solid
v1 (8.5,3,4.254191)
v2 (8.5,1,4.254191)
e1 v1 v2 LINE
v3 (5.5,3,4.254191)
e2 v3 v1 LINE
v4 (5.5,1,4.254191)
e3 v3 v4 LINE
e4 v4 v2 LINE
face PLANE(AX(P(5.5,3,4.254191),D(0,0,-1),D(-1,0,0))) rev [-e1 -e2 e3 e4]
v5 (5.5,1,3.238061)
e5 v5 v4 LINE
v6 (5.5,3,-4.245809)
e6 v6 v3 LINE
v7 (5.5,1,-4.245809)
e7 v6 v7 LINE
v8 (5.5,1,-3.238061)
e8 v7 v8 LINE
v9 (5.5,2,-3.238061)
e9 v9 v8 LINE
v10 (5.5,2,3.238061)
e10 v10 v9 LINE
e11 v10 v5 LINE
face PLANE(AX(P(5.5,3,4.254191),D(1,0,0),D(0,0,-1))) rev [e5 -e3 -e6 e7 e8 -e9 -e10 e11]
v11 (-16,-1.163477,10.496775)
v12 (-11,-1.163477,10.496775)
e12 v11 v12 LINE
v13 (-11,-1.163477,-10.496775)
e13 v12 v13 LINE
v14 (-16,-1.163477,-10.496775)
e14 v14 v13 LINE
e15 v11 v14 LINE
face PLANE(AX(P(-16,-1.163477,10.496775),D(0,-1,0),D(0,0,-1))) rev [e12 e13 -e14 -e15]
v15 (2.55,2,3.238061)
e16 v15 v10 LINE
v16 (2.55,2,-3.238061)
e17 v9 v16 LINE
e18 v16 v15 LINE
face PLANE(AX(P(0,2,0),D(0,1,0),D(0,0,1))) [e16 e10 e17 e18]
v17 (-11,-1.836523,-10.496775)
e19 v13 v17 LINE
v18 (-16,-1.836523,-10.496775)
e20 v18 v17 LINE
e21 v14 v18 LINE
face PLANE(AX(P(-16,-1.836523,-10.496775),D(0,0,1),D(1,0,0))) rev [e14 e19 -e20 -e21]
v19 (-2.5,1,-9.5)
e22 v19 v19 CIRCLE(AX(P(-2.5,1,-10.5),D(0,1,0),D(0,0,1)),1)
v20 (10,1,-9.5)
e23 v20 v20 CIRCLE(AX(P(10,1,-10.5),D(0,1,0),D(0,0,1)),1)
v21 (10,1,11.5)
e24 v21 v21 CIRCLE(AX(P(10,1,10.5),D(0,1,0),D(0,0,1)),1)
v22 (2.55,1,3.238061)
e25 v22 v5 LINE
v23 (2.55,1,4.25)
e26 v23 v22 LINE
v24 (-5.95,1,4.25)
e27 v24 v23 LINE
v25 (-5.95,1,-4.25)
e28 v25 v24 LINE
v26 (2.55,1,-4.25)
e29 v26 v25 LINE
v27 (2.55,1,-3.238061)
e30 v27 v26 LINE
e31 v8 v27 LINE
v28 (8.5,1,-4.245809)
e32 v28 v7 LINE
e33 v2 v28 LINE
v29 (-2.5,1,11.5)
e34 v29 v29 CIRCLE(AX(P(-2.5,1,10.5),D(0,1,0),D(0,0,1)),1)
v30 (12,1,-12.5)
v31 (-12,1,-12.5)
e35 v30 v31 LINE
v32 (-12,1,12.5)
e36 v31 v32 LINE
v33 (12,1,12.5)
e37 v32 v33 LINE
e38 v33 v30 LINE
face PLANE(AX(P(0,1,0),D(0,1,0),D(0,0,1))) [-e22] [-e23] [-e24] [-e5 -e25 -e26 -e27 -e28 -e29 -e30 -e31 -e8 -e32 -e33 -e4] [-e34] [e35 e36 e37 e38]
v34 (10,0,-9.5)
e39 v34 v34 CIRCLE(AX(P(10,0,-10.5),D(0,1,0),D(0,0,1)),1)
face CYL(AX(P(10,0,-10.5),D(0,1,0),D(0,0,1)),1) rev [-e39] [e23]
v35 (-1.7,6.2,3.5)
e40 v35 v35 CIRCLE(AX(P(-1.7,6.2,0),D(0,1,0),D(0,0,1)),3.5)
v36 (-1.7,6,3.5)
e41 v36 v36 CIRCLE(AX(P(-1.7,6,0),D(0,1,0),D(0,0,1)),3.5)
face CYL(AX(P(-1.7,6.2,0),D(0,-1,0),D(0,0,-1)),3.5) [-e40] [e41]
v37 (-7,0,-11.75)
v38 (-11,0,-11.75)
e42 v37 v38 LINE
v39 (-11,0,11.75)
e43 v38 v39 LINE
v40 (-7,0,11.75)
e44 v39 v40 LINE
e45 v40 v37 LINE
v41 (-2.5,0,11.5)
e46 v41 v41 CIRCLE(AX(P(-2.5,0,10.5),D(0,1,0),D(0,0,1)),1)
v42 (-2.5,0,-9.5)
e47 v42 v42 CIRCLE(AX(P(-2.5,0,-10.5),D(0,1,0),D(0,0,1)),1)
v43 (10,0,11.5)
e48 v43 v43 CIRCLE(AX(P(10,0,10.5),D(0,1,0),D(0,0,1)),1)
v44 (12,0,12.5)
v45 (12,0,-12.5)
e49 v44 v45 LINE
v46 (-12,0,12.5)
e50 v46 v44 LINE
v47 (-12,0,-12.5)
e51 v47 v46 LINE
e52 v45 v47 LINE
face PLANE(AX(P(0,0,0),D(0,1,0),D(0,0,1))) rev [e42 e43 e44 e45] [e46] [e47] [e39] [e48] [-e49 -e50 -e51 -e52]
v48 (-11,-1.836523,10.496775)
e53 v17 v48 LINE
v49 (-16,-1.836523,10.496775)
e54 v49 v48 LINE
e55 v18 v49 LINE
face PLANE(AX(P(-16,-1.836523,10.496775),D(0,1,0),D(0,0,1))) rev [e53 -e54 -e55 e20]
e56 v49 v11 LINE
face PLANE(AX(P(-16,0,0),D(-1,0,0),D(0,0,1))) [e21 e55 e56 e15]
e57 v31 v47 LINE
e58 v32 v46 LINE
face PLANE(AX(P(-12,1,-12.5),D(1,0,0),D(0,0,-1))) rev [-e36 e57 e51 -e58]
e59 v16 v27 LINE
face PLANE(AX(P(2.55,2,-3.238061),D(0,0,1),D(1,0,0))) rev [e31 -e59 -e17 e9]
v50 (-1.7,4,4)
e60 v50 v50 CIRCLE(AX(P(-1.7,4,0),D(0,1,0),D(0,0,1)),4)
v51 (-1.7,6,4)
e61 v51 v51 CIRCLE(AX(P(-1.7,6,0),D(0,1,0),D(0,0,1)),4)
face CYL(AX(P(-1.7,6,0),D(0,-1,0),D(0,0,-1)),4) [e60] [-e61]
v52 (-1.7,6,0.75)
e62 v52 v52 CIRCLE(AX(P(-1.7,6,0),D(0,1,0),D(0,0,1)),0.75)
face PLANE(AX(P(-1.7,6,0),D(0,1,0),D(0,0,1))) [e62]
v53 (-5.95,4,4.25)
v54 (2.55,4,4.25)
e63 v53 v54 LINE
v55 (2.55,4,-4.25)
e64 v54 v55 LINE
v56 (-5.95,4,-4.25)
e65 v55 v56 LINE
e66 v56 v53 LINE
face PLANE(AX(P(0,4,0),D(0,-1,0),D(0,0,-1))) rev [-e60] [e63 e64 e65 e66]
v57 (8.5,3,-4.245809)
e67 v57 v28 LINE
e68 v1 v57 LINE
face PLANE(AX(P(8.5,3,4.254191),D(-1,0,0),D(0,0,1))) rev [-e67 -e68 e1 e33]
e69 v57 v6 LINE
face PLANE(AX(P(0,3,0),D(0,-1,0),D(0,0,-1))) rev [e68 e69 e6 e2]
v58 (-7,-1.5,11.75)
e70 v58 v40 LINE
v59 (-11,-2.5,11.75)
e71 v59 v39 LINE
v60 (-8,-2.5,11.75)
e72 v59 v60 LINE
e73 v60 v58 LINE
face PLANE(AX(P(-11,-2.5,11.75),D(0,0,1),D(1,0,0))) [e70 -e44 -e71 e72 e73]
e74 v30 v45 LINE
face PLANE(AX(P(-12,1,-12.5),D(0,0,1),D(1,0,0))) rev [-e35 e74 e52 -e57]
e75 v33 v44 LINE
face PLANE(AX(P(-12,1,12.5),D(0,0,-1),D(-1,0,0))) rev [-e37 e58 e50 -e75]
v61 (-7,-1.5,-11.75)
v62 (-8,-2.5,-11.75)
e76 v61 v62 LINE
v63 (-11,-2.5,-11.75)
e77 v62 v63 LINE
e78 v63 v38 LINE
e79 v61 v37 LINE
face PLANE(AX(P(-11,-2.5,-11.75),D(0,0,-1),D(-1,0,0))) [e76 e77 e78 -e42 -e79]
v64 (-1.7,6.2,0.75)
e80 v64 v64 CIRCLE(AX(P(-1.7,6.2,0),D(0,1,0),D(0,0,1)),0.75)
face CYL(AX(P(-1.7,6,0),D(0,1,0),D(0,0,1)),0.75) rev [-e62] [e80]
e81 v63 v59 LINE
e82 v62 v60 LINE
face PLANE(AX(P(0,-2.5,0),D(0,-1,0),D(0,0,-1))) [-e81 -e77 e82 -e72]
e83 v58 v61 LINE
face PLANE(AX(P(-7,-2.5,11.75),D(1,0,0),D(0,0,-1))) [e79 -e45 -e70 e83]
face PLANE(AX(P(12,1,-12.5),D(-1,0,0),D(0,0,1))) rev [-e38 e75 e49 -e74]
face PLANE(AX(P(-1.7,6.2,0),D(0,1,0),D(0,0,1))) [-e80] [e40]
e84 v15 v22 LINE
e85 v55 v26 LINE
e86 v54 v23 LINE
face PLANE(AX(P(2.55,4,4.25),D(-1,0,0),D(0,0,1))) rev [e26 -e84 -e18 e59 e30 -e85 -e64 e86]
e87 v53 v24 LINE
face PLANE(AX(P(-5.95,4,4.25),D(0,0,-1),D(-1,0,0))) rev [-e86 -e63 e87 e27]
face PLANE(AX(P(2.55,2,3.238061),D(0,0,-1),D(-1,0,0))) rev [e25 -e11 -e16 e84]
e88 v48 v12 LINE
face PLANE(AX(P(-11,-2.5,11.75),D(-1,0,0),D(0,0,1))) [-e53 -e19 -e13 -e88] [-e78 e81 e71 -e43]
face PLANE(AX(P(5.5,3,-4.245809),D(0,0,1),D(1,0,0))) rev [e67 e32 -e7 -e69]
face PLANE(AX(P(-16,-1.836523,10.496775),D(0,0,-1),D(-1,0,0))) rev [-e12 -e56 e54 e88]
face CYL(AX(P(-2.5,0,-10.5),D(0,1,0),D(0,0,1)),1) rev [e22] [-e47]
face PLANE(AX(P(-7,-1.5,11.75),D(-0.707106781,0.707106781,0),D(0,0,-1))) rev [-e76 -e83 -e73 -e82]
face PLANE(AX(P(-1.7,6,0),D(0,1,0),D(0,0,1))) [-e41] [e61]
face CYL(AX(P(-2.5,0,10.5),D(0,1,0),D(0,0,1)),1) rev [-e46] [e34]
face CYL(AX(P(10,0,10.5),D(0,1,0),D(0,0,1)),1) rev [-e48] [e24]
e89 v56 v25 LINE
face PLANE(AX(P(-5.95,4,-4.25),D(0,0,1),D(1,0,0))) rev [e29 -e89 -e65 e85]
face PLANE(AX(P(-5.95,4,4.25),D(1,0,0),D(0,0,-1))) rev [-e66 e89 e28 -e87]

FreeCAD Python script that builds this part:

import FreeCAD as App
import Part
import Sketcher

V = App.Vector


def edges_at(feature, points):
    """Names of the edges that pass closest to the given points."""
    edges = feature.Shape.Edges
    near = lambda p: min(range(len(edges)), key=lambda i: edges[i].distToShape(Part.Vertex(*p))[0])
    return sorted({f"Edge{near(p) + 1}" for p in points})

doc = App.newDocument("Part")
params = doc.addObject("Spreadsheet::Sheet", "Params")
for row, (alias, value) in enumerate([
    ("sketch1_width", "24 mm"),
    ("sketch1_height", "25 mm"),
    ("pad1_length", "1 mm"),
    ("sketch2_width", "8.5 mm"),
    ("pad2_length", "3 mm"),
    ("sketch3_diameter", "8 mm"),
    ("pad3_length", "2 mm"),
    ("sketch4_width", "3 mm"),
    ("sketch4_height", "8.5 mm"),
    ("pad4_length", "2 mm"),
    ("sketch5_width", "2.95 mm"),
    ("pad5_length", "1 mm"),
    ("sketch6_width", "4 mm"),
    ("sketch6_height", "23.5 mm"),
    ("pad6_length", "2.5 mm"),
    ("chamfer_size", "1 mm"),
    ("pad7_length", "5 mm"),
    ("sketch8_diameter", "2 mm"),
    ("pocket1_length", "1 mm"),
    ("sketch9_diameter", "7 mm"),
    ("pad8_length", "0.2 mm"),
    ("sketch10_diameter", "1.5 mm"),
    ("pocket2_length", "0.2 mm"),
], start=1):
    params.set(f"A{row}", alias)
    params.set(f"B{row}", "=" + value)
    params.setAlias(f"B{row}", alias)

body = doc.addObject("PartDesign::Body", "Body")

# Sketch on XZ plane
sketch1 = body.newObject("Sketcher::SketchObject", "Sketch")
sketch1.AttachmentSupport = (doc.getObject("XZ_Plane"), [""])
sketch1.MapMode = "FlatFace"
sketch1.addGeometry(Part.LineSegment(V(-12, -12.5, 0), V(-12, 12.5, 0)), False)
sketch1.addGeometry(Part.LineSegment(V(-12, 12.5, 0), V(12, 12.5, 0)), False)
sketch1.addGeometry(Part.LineSegment(V(12, 12.5, 0), V(12, -12.5, 0)), False)
sketch1.addGeometry(Part.LineSegment(V(12, -12.5, 0), V(-12, -12.5, 0)), False)
sketch1.addConstraint(Sketcher.Constraint("Coincident", 0, 2, 1, 1))
sketch1.addConstraint(Sketcher.Constraint("Coincident", 1, 2, 2, 1))
sketch1.addConstraint(Sketcher.Constraint("Coincident", 2, 2, 3, 1))
sketch1.addConstraint(Sketcher.Constraint("Coincident", 3, 2, 0, 1))
sketch1.addConstraint(Sketcher.Constraint("Vertical", 0))
sketch1.addConstraint(Sketcher.Constraint("Horizontal", 1))
sketch1.addConstraint(Sketcher.Constraint("Vertical", 2))
sketch1.addConstraint(Sketcher.Constraint("Horizontal", 3))
sketch1.addConstraint(Sketcher.Constraint("Symmetric", 0, 2, 2, 2, -1, 1))
sketch1.addConstraint(Sketcher.Constraint("DistanceX", 1, 1, 1, 2, 24.0))
sketch1.addConstraint(Sketcher.Constraint("DistanceY", 0, 1, 0, 2, 25.0))
sketch1.setExpression("Constraints[9]", "Params.sketch1_width")
sketch1.setExpression("Constraints[10]", "Params.sketch1_height")
pad1 = body.newObject("PartDesign::Pad", "Pad")
pad1.Profile = sketch1
pad1.setExpression("Length", "Params.pad1_length")
pad1.Reversed = True

# Sketch on XZ plane
sketch2 = body.newObject("Sketcher::SketchObject", "Sketch001")
sketch2.AttachmentSupport = (doc.getObject("XZ_Plane"), [""])
sketch2.MapMode = "FlatFace"
sketch2.AttachmentOffset = App.Placement(V(0, 0, -1), App.Rotation())
sketch2.addGeometry(Part.LineSegment(V(-5.95, -4.25, 0), V(-5.95, 4.25, 0)), False)
sketch2.addGeometry(Part.LineSegment(V(-5.95, 4.25, 0), V(2.55, 4.25, 0)), False)
sketch2.addGeometry(Part.LineSegment(V(2.55, 4.25, 0), V(2.55, -4.25, 0)), False)
sketch2.addGeometry(Part.LineSegment(V(2.55, -4.25, 0), V(-5.95, -4.25, 0)), False)
sketch2.addConstraint(Sketcher.Constraint("Coincident", 0, 2, 1, 1))
sketch2.addConstraint(Sketcher.Constraint("Coincident", 1, 2, 2, 1))
sketch2.addConstraint(Sketcher.Constraint("Coincident", 2, 2, 3, 1))
sketch2.addConstraint(Sketcher.Constraint("Coincident", 3, 2, 0, 1))
sketch2.addConstraint(Sketcher.Constraint("Vertical", 0))
sketch2.addConstraint(Sketcher.Constraint("Horizontal", 1))
sketch2.addConstraint(Sketcher.Constraint("Vertical", 2))
sketch2.addConstraint(Sketcher.Constraint("Horizontal", 3))
sketch2.addConstraint(Sketcher.Constraint("Equal", 3, 0))
sketch2.addConstraint(Sketcher.Constraint("DistanceX", 1, 1, 1, 2, 8.5))
sketch2.addConstraint(Sketcher.Constraint("DistanceX", 0, 2, -1, 1, 5.95))
sketch2.addConstraint(Sketcher.Constraint("DistanceY", -1, 1, 0, 2, 4.25))
sketch2.setExpression("Constraints[9]", "Params.sketch2_width")
pad2 = body.newObject("PartDesign::Pad", "Pad001")
pad2.Profile = sketch2
pad2.setExpression("Length", "Params.pad2_length")
pad2.Reversed = True

# Sketch on XZ plane
sketch3 = body.newObject("Sketcher::SketchObject", "Sketch002")
sketch3.AttachmentSupport = (doc.getObject("XZ_Plane"), [""])
sketch3.MapMode = "FlatFace"
sketch3.AttachmentOffset = App.Placement(V(0, 0, -4), App.Rotation())
sketch3.addGeometry(Part.Circle(V(-1.7, 0, 0), V(0, 0, 1), 4), False)
sketch3.addConstraint(Sketcher.Constraint("PointOnObject", 0, 3, -1))
sketch3.addConstraint(Sketcher.Constraint("Diameter", 0, 8.0))
sketch3.addConstraint(Sketcher.Constraint("DistanceX", 0, 3, -1, 1, 1.7))
sketch3.setExpression("Constraints[1]", "Params.sketch3_diameter")
pad3 = body.newObject("PartDesign::Pad", "Pad002")
pad3.Profile = sketch3
pad3.setExpression("Length", "Params.pad3_length")
pad3.Reversed = True

# Sketch on XZ plane
sketch4 = body.newObject("Sketcher::SketchObject", "Sketch003")
sketch4.AttachmentSupport = (doc.getObject("XZ_Plane"), [""])
sketch4.MapMode = "FlatFace"
sketch4.AttachmentOffset = App.Placement(V(0, 0, -1), App.Rotation())
sketch4.addGeometry(Part.LineSegment(V(5.5, -4.245809, 0), V(5.5, 4.254191, 0)), False)
sketch4.addGeometry(Part.LineSegment(V(5.5, 4.254191, 0), V(8.5, 4.254191, 0)), False)
sketch4.addGeometry(Part.LineSegment(V(8.5, 4.254191, 0), V(8.5, -4.245809, 0)), False)
sketch4.addGeometry(Part.LineSegment(V(8.5, -4.245809, 0), V(5.5, -4.245809, 0)), False)
sketch4.addConstraint(Sketcher.Constraint("Coincident", 0, 2, 1, 1))
sketch4.addConstraint(Sketcher.Constraint("Coincident", 1, 2, 2, 1))
sketch4.addConstraint(Sketcher.Constraint("Coincident", 2, 2, 3, 1))
sketch4.addConstraint(Sketcher.Constraint("Coincident", 3, 2, 0, 1))
sketch4.addConstraint(Sketcher.Constraint("Vertical", 0))
sketch4.addConstraint(Sketcher.Constraint("Horizontal", 1))
sketch4.addConstraint(Sketcher.Constraint("Vertical", 2))
sketch4.addConstraint(Sketcher.Constraint("Horizontal", 3))
sketch4.addConstraint(Sketcher.Constraint("DistanceX", 1, 1, 1, 2, 3.0))
sketch4.addConstraint(Sketcher.Constraint("DistanceY", 0, 1, 0, 2, 8.5))
sketch4.addConstraint(Sketcher.Constraint("DistanceX", -1, 1, 0, 2, 5.5))
sketch4.addConstraint(Sketcher.Constraint("DistanceY", -1, 1, 0, 2, 4.254191))
sketch4.setExpression("Constraints[8]", "Params.sketch4_width")
sketch4.setExpression("Constraints[9]", "Params.sketch4_height")
pad4 = body.newObject("PartDesign::Pad", "Pad003")
pad4.Profile = sketch4
pad4.setExpression("Length", "Params.pad4_length")
pad4.Reversed = True

# Sketch on XZ plane
sketch5 = body.newObject("Sketcher::SketchObject", "Sketch004")
sketch5.AttachmentSupport = (doc.getObject("XZ_Plane"), [""])
sketch5.MapMode = "FlatFace"
sketch5.AttachmentOffset = App.Placement(V(0, 0, -1), App.Rotation())
sketch5.addGeometry(Part.LineSegment(V(2.55, -3.238061, 0), V(2.55, 3.238061, 0)), False)
sketch5.addGeometry(Part.LineSegment(V(2.55, 3.238061, 0), V(5.5, 3.238061, 0)), False)
sketch5.addGeometry(Part.LineSegment(V(5.5, 3.238061, 0), V(5.5, -3.238061, 0)), False)
sketch5.addGeometry(Part.LineSegment(V(5.5, -3.238061, 0), V(2.55, -3.238061, 0)), False)
sketch5.addConstraint(Sketcher.Constraint("Coincident", 0, 2, 1, 1))
sketch5.addConstraint(Sketcher.Constraint("Coincident", 1, 2, 2, 1))
sketch5.addConstraint(Sketcher.Constraint("Coincident", 2, 2, 3, 1))
sketch5.addConstraint(Sketcher.Constraint("Coincident", 3, 2, 0, 1))
sketch5.addConstraint(Sketcher.Constraint("Vertical", 0))
sketch5.addConstraint(Sketcher.Constraint("Horizontal", 1))
sketch5.addConstraint(Sketcher.Constraint("Vertical", 2))
sketch5.addConstraint(Sketcher.Constraint("Horizontal", 3))
sketch5.addConstraint(Sketcher.Constraint("DistanceX", 1, 1, 1, 2, 2.95))
sketch5.addConstraint(Sketcher.Constraint("DistanceX", -1, 1, 1, 2, 5.5))
sketch5.addConstraint(Sketcher.Constraint("DistanceY", 0, 1, 0, 2, 6.476123))
sketch5.addConstraint(Sketcher.Constraint("DistanceY", -1, 1, 0, 2, 3.238061))
sketch5.setExpression("Constraints[8]", "Params.sketch5_width")
pad5 = body.newObject("PartDesign::Pad", "Pad004")
pad5.Profile = sketch5
pad5.setExpression("Length", "Params.pad5_length")
pad5.Reversed = True

# Sketch on XZ plane
sketch6 = body.newObject("Sketcher::SketchObject", "Sketch005")
sketch6.AttachmentSupport = (doc.getObject("XZ_Plane"), [""])
sketch6.MapMode = "FlatFace"
sketch6.addGeometry(Part.LineSegment(V(-11, -11.75, 0), V(-11, 11.75, 0)), False)
sketch6.addGeometry(Part.LineSegment(V(-11, 11.75, 0), V(-7, 11.75, 0)), False)
sketch6.addGeometry(Part.LineSegment(V(-7, 11.75, 0), V(-7, -11.75, 0)), False)
sketch6.addGeometry(Part.LineSegment(V(-7, -11.75, 0), V(-11, -11.75, 0)), False)
sketch6.addConstraint(Sketcher.Constraint("Coincident", 0, 2, 1, 1))
sketch6.addConstraint(Sketcher.Constraint("Coincident", 1, 2, 2, 1))
sketch6.addConstraint(Sketcher.Constraint("Coincident", 2, 2, 3, 1))
sketch6.addConstraint(Sketcher.Constraint("Coincident", 3, 2, 0, 1))
sketch6.addConstraint(Sketcher.Constraint("Vertical", 0))
sketch6.addConstraint(Sketcher.Constraint("Horizontal", 1))
sketch6.addConstraint(Sketcher.Constraint("Vertical", 2))
sketch6.addConstraint(Sketcher.Constraint("Horizontal", 3))
sketch6.addConstraint(Sketcher.Constraint("DistanceX", 1, 1, 1, 2, 4.0))
sketch6.addConstraint(Sketcher.Constraint("DistanceY", 0, 1, 0, 2, 23.5))
sketch6.addConstraint(Sketcher.Constraint("DistanceX", 0, 2, -1, 1, 11.0))
sketch6.addConstraint(Sketcher.Constraint("DistanceY", -1, 1, 0, 2, 11.75))
sketch6.setExpression("Constraints[8]", "Params.sketch6_width")
sketch6.setExpression("Constraints[9]", "Params.sketch6_height")
pad6 = body.newObject("PartDesign::Pad", "Pad005")
pad6.Profile = sketch6
pad6.setExpression("Length", "Params.pad6_length")
doc.recompute()

chamfer = body.newObject("PartDesign::Chamfer", "Chamfer")
chamfer.Base = (pad6, edges_at(pad6, [(-7, -2.5, 0)]))
chamfer.setExpression("Size", "Params.chamfer_size")

# Sketch on YZ plane
sketch7 = body.newObject("Sketcher::SketchObject", "Sketch006")
sketch7.AttachmentSupport = (doc.getObject("YZ_Plane"), [""])
sketch7.MapMode = "FlatFace"
sketch7.AttachmentOffset = App.Placement(V(0, 0, -11), App.Rotation())
sketch7.addGeometry(Part.LineSegment(V(-1.163477, -10.496775, 0), V(-1.836523, -10.496775, 0)), False)
sketch7.addGeometry(Part.LineSegment(V(-1.836523, -10.496775, 0), V(-1.836523, 10.496775, 0)), False)
sketch7.addGeometry(Part.LineSegment(V(-1.836523, 10.496775, 0), V(-1.163477, 10.496775, 0)), False)
sketch7.addGeometry(Part.LineSegment(V(-1.163477, 10.496775, 0), V(-1.163477, -10.496775, 0)), False)
sketch7.addConstraint(Sketcher.Constraint("Coincident", 0, 2, 1, 1))
sketch7.addConstraint(Sketcher.Constraint("Coincident", 1, 2, 2, 1))
sketch7.addConstraint(Sketcher.Constraint("Coincident", 2, 2, 3, 1))
sketch7.addConstraint(Sketcher.Constraint("Coincident", 3, 2, 0, 1))
sketch7.addConstraint(Sketcher.Constraint("Horizontal", 0))
sketch7.addConstraint(Sketcher.Constraint("Vertical", 1))
sketch7.addConstraint(Sketcher.Constraint("Horizontal", 2))
sketch7.addConstraint(Sketcher.Constraint("Vertical", 3))
sketch7.addConstraint(Sketcher.Constraint("DistanceY", 1, 1, 1, 2, 20.99355))
sketch7.addConstraint(Sketcher.Constraint("DistanceX", 0, 2, 0, 1, 0.673046))
sketch7.addConstraint(Sketcher.Constraint("DistanceX", 0, 2, -1, 1, 1.836523))
sketch7.addConstraint(Sketcher.Constraint("DistanceY", 0, 2, -1, 1, 10.496775))
pad7 = body.newObject("PartDesign::Pad", "Pad006")
pad7.Profile = sketch7
pad7.setExpression("Length", "Params.pad7_length")
pad7.Reversed = True

# Sketch on XZ plane
sketch8 = body.newObject("Sketcher::SketchObject", "Sketch007")
sketch8.AttachmentSupport = (doc.getObject("XZ_Plane"), [""])
sketch8.MapMode = "FlatFace"
sketch8.AttachmentOffset = App.Placement(V(0, 0, -1), App.Rotation())
sketch8.addGeometry(Part.Circle(V(10, 10.5, 0), V(0, 0, 1), 1), False)
sketch8.addGeometry(Part.Circle(V(10, -10.5, 0), V(0, 0, 1), 1), False)
sketch8.addGeometry(Part.Circle(V(-2.5, 10.5, 0), V(0, 0, 1), 1), False)
sketch8.addGeometry(Part.Circle(V(-2.5, -10.5, 0), V(0, 0, 1), 1), False)
sketch8.addConstraint(Sketcher.Constraint("Equal", 0, 1))
sketch8.addConstraint(Sketcher.Constraint("Equal", 1, 2))
sketch8.addConstraint(Sketcher.Constraint("Equal", 2, 3))
sketch8.addConstraint(Sketcher.Constraint("Symmetric", 0, 3, 1, 3, -1))
sketch8.addConstraint(Sketcher.Constraint("Symmetric", 2, 3, 3, 3, -1))
sketch8.addConstraint(Sketcher.Constraint("Horizontal", 0, 3, 2, 3))
sketch8.addConstraint(Sketcher.Constraint("Diameter", 0, 2.0))
sketch8.addConstraint(Sketcher.Constraint("DistanceX", -1, 1, 0, 3, 10.0))
sketch8.addConstraint(Sketcher.Constraint("DistanceY", 1, 3, 0, 3, 21.0))
sketch8.addConstraint(Sketcher.Constraint("DistanceX", 2, 3, -1, 1, 2.5))
sketch8.setExpression("Constraints[6]", "Params.sketch8_diameter")
pocket1 = body.newObject("PartDesign::Pocket", "Pocket")
pocket1.Profile = sketch8
pocket1.setExpression("Length", "Params.pocket1_length")
pocket1.Reversed = True

# Sketch on XZ plane
sketch9 = body.newObject("Sketcher::SketchObject", "Sketch008")
sketch9.AttachmentSupport = (doc.getObject("XZ_Plane"), [""])
sketch9.MapMode = "FlatFace"
sketch9.AttachmentOffset = App.Placement(V(0, 0, -6), App.Rotation())
sketch9.addGeometry(Part.Circle(V(-1.7, 0, 0), V(0, 0, 1), 3.5), False)
sketch9.addConstraint(Sketcher.Constraint("PointOnObject", 0, 3, -1))
sketch9.addConstraint(Sketcher.Constraint("Diameter", 0, 7.0))
sketch9.addConstraint(Sketcher.Constraint("DistanceX", 0, 3, -1, 1, 1.7))
sketch9.setExpression("Constraints[1]", "Params.sketch9_diameter")
pad8 = body.newObject("PartDesign::Pad", "Pad007")
pad8.Profile = sketch9
pad8.setExpression("Length", "Params.pad8_length")
pad8.Reversed = True

# Sketch on XZ plane
sketch10 = body.newObject("Sketcher::SketchObject", "Sketch009")
sketch10.AttachmentSupport = (doc.getObject("XZ_Plane"), [""])
sketch10.MapMode = "FlatFace"
sketch10.AttachmentOffset = App.Placement(V(0, 0, -6.2), App.Rotation())
sketch10.addGeometry(Part.Circle(V(-1.7, 0, 0), V(0, 0, 1), 0.75), False)
sketch10.addConstraint(Sketcher.Constraint("PointOnObject", 0, 3, -1))
sketch10.addConstraint(Sketcher.Constraint("Diameter", 0, 1.5))
sketch10.addConstraint(Sketcher.Constraint("DistanceX", 0, 3, -1, 1, 1.7))
sketch10.setExpression("Constraints[1]", "Params.sketch10_diameter")
pocket2 = body.newObject("PartDesign::Pocket", "Pocket001")
pocket2.Profile = sketch10
pocket2.setExpression("Length", "Params.pocket2_length")
pocket2.Reversed = True

doc.recompute()
